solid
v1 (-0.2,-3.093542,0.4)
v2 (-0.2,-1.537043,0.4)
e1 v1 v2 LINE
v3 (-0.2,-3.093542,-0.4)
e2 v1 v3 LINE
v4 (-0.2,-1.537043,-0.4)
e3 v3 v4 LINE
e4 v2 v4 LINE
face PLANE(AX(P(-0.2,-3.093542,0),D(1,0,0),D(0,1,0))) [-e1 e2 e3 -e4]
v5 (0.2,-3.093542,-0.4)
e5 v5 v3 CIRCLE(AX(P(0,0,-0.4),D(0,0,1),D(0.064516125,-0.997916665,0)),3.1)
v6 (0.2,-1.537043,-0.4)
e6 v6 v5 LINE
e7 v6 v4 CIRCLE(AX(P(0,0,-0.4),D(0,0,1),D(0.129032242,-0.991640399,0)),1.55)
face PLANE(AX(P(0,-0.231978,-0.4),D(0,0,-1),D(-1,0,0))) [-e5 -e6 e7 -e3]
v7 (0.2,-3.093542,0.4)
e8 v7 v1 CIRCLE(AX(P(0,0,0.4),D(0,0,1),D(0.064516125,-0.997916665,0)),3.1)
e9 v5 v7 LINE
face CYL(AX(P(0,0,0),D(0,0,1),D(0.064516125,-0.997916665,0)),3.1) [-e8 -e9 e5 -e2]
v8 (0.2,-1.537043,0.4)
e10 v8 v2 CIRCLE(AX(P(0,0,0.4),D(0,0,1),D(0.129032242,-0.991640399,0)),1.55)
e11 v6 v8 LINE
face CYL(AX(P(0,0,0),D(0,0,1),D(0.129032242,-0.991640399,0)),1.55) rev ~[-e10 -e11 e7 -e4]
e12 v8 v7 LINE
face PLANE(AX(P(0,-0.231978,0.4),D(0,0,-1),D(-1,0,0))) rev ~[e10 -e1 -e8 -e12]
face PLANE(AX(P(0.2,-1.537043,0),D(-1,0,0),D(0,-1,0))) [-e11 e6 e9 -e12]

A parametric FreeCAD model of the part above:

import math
import FreeCAD as App
import Part
import Sketcher
Q = App.Units.Quantity

doc = App.newDocument("Part")
body = doc.addObject("PartDesign::Body", "Body")

# Sketch on XY plane
sketch1 = body.newObject("Sketcher::SketchObject", "Sketch")
sketch1.AttachmentSupport = (doc.getObject("XY_Plane"), [""])
sketch1.MapMode = "FlatFace"
sketch1.addGeometry([
    Part.ArcOfCircle(Part.Circle(App.Vector(0, 0, 0), App.Vector(0, 0, 1), 1.55), math.radians(-83), math.radians(263)),
    Part.LineSegment(App.Vector(0.2, -1.54, 0), App.Vector(0.2, -3.09, 0)),
    Part.ArcOfCircle(Part.Circle(App.Vector(0, 0, 0), App.Vector(0, 0, 1), 3.1), math.radians(-86), math.radians(266)),
    Part.LineSegment(App.Vector(-0.2, -3.09, 0), App.Vector(-0.2, -1.54, 0)),
], False)
sketch1.addConstraint([
    Sketcher.Constraint("Coincident", 0, 1, 1, 1),
    Sketcher.Constraint("Coincident", 1, 2, 2, 1),
    Sketcher.Constraint("Coincident", 2, 2, 3, 1),
    Sketcher.Constraint("Coincident", 3, 2, 0, 2),
    Sketcher.Constraint("Vertical", 1),
    Sketcher.Constraint("Vertical", 3),
    Sketcher.Constraint("Coincident", 0, 3, -1, 1),
    Sketcher.Constraint("Coincident", 2, 3, -1, 1),
    Sketcher.Constraint("Horizontal", 1, 2, 2, 2),
    Sketcher.Constraint("Radius", 2, Q("3.1 mm")),
    Sketcher.Constraint("Radius", 0, Q("1.55 mm")),
    Sketcher.Constraint("DistanceX", -1, 1, 0, 1, Q("0.2 mm")),
])
pad1 = body.newObject("PartDesign::Pad", "Pad")
pad1.Profile = sketch1
pad1.Length = 0.8
pad1.Midplane = True

doc.recompute()
